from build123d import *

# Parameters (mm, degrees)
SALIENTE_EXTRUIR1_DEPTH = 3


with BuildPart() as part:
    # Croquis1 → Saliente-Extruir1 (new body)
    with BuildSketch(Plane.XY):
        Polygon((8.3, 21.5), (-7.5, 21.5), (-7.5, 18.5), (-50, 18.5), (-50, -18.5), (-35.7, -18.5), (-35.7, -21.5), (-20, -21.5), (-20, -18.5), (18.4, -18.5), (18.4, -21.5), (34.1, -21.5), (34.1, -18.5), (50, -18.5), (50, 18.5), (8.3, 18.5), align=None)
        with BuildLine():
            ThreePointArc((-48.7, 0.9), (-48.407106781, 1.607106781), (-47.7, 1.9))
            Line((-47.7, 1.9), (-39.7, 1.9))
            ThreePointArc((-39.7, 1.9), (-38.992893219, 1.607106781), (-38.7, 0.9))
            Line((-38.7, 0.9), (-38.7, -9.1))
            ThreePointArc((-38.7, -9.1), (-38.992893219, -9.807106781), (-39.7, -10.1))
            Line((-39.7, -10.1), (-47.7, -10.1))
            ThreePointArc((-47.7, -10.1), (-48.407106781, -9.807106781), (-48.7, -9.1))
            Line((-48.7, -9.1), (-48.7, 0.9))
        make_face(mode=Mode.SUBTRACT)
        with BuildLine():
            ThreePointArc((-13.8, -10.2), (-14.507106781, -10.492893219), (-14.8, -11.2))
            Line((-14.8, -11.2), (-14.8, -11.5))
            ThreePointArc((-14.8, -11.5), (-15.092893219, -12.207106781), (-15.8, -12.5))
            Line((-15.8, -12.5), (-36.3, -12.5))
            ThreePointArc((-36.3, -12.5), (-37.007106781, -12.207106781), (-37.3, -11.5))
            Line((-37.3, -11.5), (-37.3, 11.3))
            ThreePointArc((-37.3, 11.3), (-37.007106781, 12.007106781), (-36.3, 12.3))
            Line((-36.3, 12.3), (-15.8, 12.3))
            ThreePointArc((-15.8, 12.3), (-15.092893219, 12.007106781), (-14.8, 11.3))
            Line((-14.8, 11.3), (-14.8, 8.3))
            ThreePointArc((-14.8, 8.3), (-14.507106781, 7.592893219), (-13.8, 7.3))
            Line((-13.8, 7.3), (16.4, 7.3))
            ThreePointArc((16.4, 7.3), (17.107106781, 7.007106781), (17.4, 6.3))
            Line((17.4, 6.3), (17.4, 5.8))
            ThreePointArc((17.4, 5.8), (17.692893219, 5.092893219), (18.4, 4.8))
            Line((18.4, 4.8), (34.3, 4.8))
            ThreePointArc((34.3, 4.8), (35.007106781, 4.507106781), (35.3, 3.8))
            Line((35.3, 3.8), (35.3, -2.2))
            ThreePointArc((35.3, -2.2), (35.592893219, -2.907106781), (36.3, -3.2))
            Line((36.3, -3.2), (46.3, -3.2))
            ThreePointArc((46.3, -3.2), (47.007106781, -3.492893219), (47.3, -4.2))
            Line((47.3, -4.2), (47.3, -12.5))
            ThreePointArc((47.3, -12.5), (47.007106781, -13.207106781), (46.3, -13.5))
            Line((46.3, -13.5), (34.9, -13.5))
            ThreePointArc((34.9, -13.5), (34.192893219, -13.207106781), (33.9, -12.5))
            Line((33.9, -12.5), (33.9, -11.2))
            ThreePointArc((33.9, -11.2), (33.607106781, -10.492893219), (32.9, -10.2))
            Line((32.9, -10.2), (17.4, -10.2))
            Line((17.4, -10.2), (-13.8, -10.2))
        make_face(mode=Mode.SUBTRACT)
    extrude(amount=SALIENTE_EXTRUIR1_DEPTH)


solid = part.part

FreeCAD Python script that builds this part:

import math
import FreeCAD as App
import Part
import Sketcher
Q = App.Units.Quantity

doc = App.newDocument("Part")
body = doc.addObject("PartDesign::Body", "Body")

# Sketch on XY plane
sketch1 = body.newObject("Sketcher::SketchObject", "Sketch")
sketch1.AttachmentSupport = (doc.getObject("XY_Plane"), [""])
sketch1.MapMode = "FlatFace"
sketch1.addGeometry([
    Part.LineSegment(App.Vector(8.3, 21.5, 0), App.Vector(-7.5, 21.5, 0)),  # 0
    Part.LineSegment(App.Vector(-7.5, 21.5, 0), App.Vector(-7.5, 18.5, 0)),  # 1
    Part.LineSegment(App.Vector(-7.5, 18.5, 0), App.Vector(-50, 18.5, 0)),  # 2
    Part.LineSegment(App.Vector(-50, 18.5, 0), App.Vector(-50, -18.5, 0)),  # 3
    Part.LineSegment(App.Vector(-50, -18.5, 0), App.Vector(-35.7, -18.5, 0)),  # 4
    Part.LineSegment(App.Vector(-35.7, -18.5, 0), App.Vector(-35.7, -21.5, 0)),  # 5
    Part.LineSegment(App.Vector(-35.7, -21.5, 0), App.Vector(-20, -21.5, 0)),  # 6
    Part.LineSegment(App.Vector(-20, -21.5, 0), App.Vector(-20, -18.5, 0)),  # 7
    Part.LineSegment(App.Vector(-20, -18.5, 0), App.Vector(18.4, -18.5, 0)),  # 8
    Part.LineSegment(App.Vector(18.4, -18.5, 0), App.Vector(18.4, -21.5, 0)),  # 9
    Part.LineSegment(App.Vector(18.4, -21.5, 0), App.Vector(34.1, -21.5, 0)),  # 10
    Part.LineSegment(App.Vector(34.1, -21.5, 0), App.Vector(34.1, -18.5, 0)),  # 11
    Part.LineSegment(App.Vector(34.1, -18.5, 0), App.Vector(50, -18.5, 0)),  # 12
    Part.LineSegment(App.Vector(50, -18.5, 0), App.Vector(50, 18.5, 0)),  # 13
    Part.LineSegment(App.Vector(50, 18.5, 0), App.Vector(8.3, 18.5, 0)),  # 14
    Part.LineSegment(App.Vector(8.3, 18.5, 0), App.Vector(8.3, 21.5, 0)),  # 15
    Part.LineSegment(App.Vector(-48.7, -9.1, 0), App.Vector(-48.7, 0.9, 0)),  # 16
    Part.ArcOfCircle(Part.Circle(App.Vector(-47.7, 0.9, 0), App.Vector(0, 0, 1), 1), math.radians(90), math.radians(180)),  # 17
    Part.LineSegment(App.Vector(-47.7, 1.9, 0), App.Vector(-39.7, 1.9, 0)),  # 18
    Part.ArcOfCircle(Part.Circle(App.Vector(-39.7, 0.9, 0), App.Vector(0, 0, 1), 1), math.radians(0), math.radians(90)),  # 19
    Part.LineSegment(App.Vector(-38.7, 0.9, 0), App.Vector(-38.7, -9.1, 0)),  # 20
    Part.ArcOfCircle(Part.Circle(App.Vector(-39.7, -9.1, 0), App.Vector(0, 0, 1), 1), math.radians(-90), math.radians(0)),  # 21
    Part.LineSegment(App.Vector(-39.7, -10.1, 0), App.Vector(-47.7, -10.1, 0)),  # 22
    Part.ArcOfCircle(Part.Circle(App.Vector(-47.7, -9.1, 0), App.Vector(0, 0, 1), 1), math.radians(-180), math.radians(-90)),  # 23
    Part.LineSegment(App.Vector(32.9, -10.2, 0), App.Vector(-13.8, -10.2, 0)),  # 24
    Part.ArcOfCircle(Part.Circle(App.Vector(-13.8, -11.2, 0), App.Vector(0, 0, 1), 1), math.radians(90), math.radians(180)),  # 25
    Part.LineSegment(App.Vector(-14.8, -11.2, 0), App.Vector(-14.8, -11.5, 0)),  # 26
    Part.ArcOfCircle(Part.Circle(App.Vector(-15.8, -11.5, 0), App.Vector(0, 0, 1), 1), math.radians(-90), math.radians(0)),  # 27
    Part.LineSegment(App.Vector(-15.8, -12.5, 0), App.Vector(-36.3, -12.5, 0)),  # 28
    Part.ArcOfCircle(Part.Circle(App.Vector(-36.3, -11.5, 0), App.Vector(0, 0, 1), 1), math.radians(-180), math.radians(-90)),  # 29
    Part.LineSegment(App.Vector(-37.3, -11.5, 0), App.Vector(-37.3, 11.3, 0)),  # 30
    Part.ArcOfCircle(Part.Circle(App.Vector(-36.3, 11.3, 0), App.Vector(0, 0, 1), 1), math.radians(90), math.radians(180)),  # 31
    Part.LineSegment(App.Vector(-36.3, 12.3, 0), App.Vector(-15.8, 12.3, 0)),  # 32
    Part.ArcOfCircle(Part.Circle(App.Vector(-15.8, 11.3, 0), App.Vector(0, 0, 1), 1), math.radians(0), math.radians(90)),  # 33
    Part.LineSegment(App.Vector(-14.8, 11.3, 0), App.Vector(-14.8, 8.3, 0)),  # 34
    Part.ArcOfCircle(Part.Circle(App.Vector(-13.8, 8.3, 0), App.Vector(0, 0, 1), 1), math.radians(-180), math.radians(-90)),  # 35
    Part.LineSegment(App.Vector(-13.8, 7.3, 0), App.Vector(16.4, 7.3, 0)),  # 36
    Part.ArcOfCircle(Part.Circle(App.Vector(16.4, 6.3, 0), App.Vector(0, 0, 1), 1), math.radians(0), math.radians(90)),  # 37
    Part.LineSegment(App.Vector(17.4, 6.3, 0), App.Vector(17.4, 5.8, 0)),  # 38
    Part.ArcOfCircle(Part.Circle(App.Vector(18.4, 5.8, 0), App.Vector(0, 0, 1), 1), math.radians(-180), math.radians(-90)),  # 39
    Part.LineSegment(App.Vector(18.4, 4.8, 0), App.Vector(34.3, 4.8, 0)),  # 40
    Part.ArcOfCircle(Part.Circle(App.Vector(34.3, 3.8, 0), App.Vector(0, 0, 1), 1), math.radians(0), math.radians(90)),  # 41
    Part.LineSegment(App.Vector(35.3, 3.8, 0), App.Vector(35.3, -2.2, 0)),  # 42
    Part.ArcOfCircle(Part.Circle(App.Vector(36.3, -2.2, 0), App.Vector(0, 0, 1), 1), math.radians(-180), math.radians(-90)),  # 43
    Part.LineSegment(App.Vector(36.3, -3.2, 0), App.Vector(46.3, -3.2, 0)),  # 44
    Part.ArcOfCircle(Part.Circle(App.Vector(46.3, -4.2, 0), App.Vector(0, 0, 1), 1), math.radians(0), math.radians(90)),  # 45
    Part.LineSegment(App.Vector(47.3, -4.2, 0), App.Vector(47.3, -12.5, 0)),  # 46
    Part.ArcOfCircle(Part.Circle(App.Vector(46.3, -12.5, 0), App.Vector(0, 0, 1), 1), math.radians(-90), math.radians(0)),  # 47
    Part.LineSegment(App.Vector(46.3, -13.5, 0), App.Vector(34.9, -13.5, 0)),  # 48
    Part.ArcOfCircle(Part.Circle(App.Vector(34.9, -12.5, 0), App.Vector(0, 0, 1), 1), math.radians(-180), math.radians(-90)),  # 49
    Part.LineSegment(App.Vector(33.9, -12.5, 0), App.Vector(33.9, -11.2, 0)),  # 50
    Part.ArcOfCircle(Part.Circle(App.Vector(32.9, -11.2, 0), App.Vector(0, 0, 1), 1), math.radians(0), math.radians(90)),  # 51
], False)
sketch1.addConstraint([
    Sketcher.Constraint("Coincident", 0, 2, 1, 1),
    Sketcher.Constraint("Coincident", 1, 2, 2, 1),
    Sketcher.Constraint("Coincident", 2, 2, 3, 1),
    Sketcher.Constraint("Coincident", 3, 2, 4, 1),
    Sketcher.Constraint("Coincident", 4, 2, 5, 1),
    Sketcher.Constraint("Coincident", 5, 2, 6, 1),
    Sketcher.Constraint("Coincident", 6, 2, 7, 1),
    Sketcher.Constraint("Coincident", 7, 2, 8, 1),
    Sketcher.Constraint("Coincident", 8, 2, 9, 1),
    Sketcher.Constraint("Coincident", 9, 2, 10, 1),
    Sketcher.Constraint("Coincident", 10, 2, 11, 1),
    Sketcher.Constraint("Coincident", 11, 2, 12, 1),
    Sketcher.Constraint("Coincident", 12, 2, 13, 1),
    Sketcher.Constraint("Coincident", 13, 2, 14, 1),
    Sketcher.Constraint("Coincident", 14, 2, 15, 1),
    Sketcher.Constraint("Coincident", 15, 2, 0, 1),
    Sketcher.Constraint("Tangent", 16, 2, 17, 2),
    Sketcher.Constraint("Tangent", 17, 1, 18, 1),
    Sketcher.Constraint("Tangent", 18, 2, 19, 2),
    Sketcher.Constraint("Tangent", 19, 1, 20, 1),
    Sketcher.Constraint("Tangent", 20, 2, 21, 2),
    Sketcher.Constraint("Tangent", 21, 1, 22, 1),
    Sketcher.Constraint("Tangent", 22, 2, 23, 2),
    Sketcher.Constraint("Tangent", 23, 1, 16, 1),
    Sketcher.Constraint("Tangent", 24, 2, 25, 1),
    Sketcher.Constraint("Tangent", 25, 2, 26, 1),
    Sketcher.Constraint("Tangent", 26, 2, 27, 2),
    Sketcher.Constraint("Tangent", 27, 1, 28, 1),
    Sketcher.Constraint("Tangent", 28, 2, 29, 2),
    Sketcher.Constraint("Tangent", 29, 1, 30, 1),
    Sketcher.Constraint("Tangent", 30, 2, 31, 2),
    Sketcher.Constraint("Tangent", 31, 1, 32, 1),
    Sketcher.Constraint("Tangent", 32, 2, 33, 2),
    Sketcher.Constraint("Tangent", 33, 1, 34, 1),
    Sketcher.Constraint("Tangent", 34, 2, 35, 1),
    Sketcher.Constraint("Tangent", 35, 2, 36, 1),
    Sketcher.Constraint("Tangent", 36, 2, 37, 2),
    Sketcher.Constraint("Tangent", 37, 1, 38, 1),
    Sketcher.Constraint("Tangent", 38, 2, 39, 1),
    Sketcher.Constraint("Tangent", 39, 2, 40, 1),
    Sketcher.Constraint("Tangent", 40, 2, 41, 2),
    Sketcher.Constraint("Tangent", 41, 1, 42, 1),
    Sketcher.Constraint("Tangent", 42, 2, 43, 1),
    Sketcher.Constraint("Tangent", 43, 2, 44, 1),
    Sketcher.Constraint("Tangent", 44, 2, 45, 2),
    Sketcher.Constraint("Tangent", 45, 1, 46, 1),
    Sketcher.Constraint("Tangent", 46, 2, 47, 2),
    Sketcher.Constraint("Tangent", 47, 1, 48, 1),
    Sketcher.Constraint("Tangent", 48, 2, 49, 2),
    Sketcher.Constraint("Tangent", 49, 1, 50, 1),
    Sketcher.Constraint("Tangent", 50, 2, 51, 1),
    Sketcher.Constraint("Tangent", 51, 2, 24, 1),
    Sketcher.Constraint("Horizontal", 0),
    Sketcher.Constraint("Vertical", 1),
    Sketcher.Constraint("Horizontal", 2),
    Sketcher.Constraint("Vertical", 3),
    Sketcher.Constraint("Horizontal", 4),
    Sketcher.Constraint("Vertical", 5),
    Sketcher.Constraint("Horizontal", 6),
    Sketcher.Constraint("Vertical", 7),
    Sketcher.Constraint("Horizontal", 8),
    Sketcher.Constraint("Vertical", 9),
    Sketcher.Constraint("Horizontal", 10),
    Sketcher.Constraint("Vertical", 11),
    Sketcher.Constraint("Horizontal", 12),
    Sketcher.Constraint("Vertical", 13),
    Sketcher.Constraint("Horizontal", 14),
    Sketcher.Constraint("Vertical", 15),
    Sketcher.Constraint("Vertical", 16),
    Sketcher.Constraint("Horizontal", 18),
    Sketcher.Constraint("Vertical", 20),
    Sketcher.Constraint("Horizontal", 22),
    Sketcher.Constraint("Horizontal", 24),
    Sketcher.Constraint("Vertical", 26),
    Sketcher.Constraint("Horizontal", 28),
    Sketcher.Constraint("Vertical", 30),
    Sketcher.Constraint("Horizontal", 32),
    Sketcher.Constraint("Vertical", 34),
    Sketcher.Constraint("Horizontal", 36),
    Sketcher.Constraint("Vertical", 38),
    Sketcher.Constraint("Horizontal", 40),
    Sketcher.Constraint("Vertical", 42),
    Sketcher.Constraint("Horizontal", 44),
    Sketcher.Constraint("Vertical", 46),
    Sketcher.Constraint("Horizontal", 48),
    Sketcher.Constraint("Vertical", 50),
    Sketcher.Constraint("Equal", 17, 19),
    Sketcher.Constraint("Equal", 19, 21),
    Sketcher.Constraint("Equal", 21, 23),
    Sketcher.Constraint("Equal", 23, 25),
    Sketcher.Constraint("Equal", 25, 27),
    Sketcher.Constraint("Equal", 27, 29),
    Sketcher.Constraint("Equal", 29, 31),
    Sketcher.Constraint("Equal", 31, 33),
    Sketcher.Constraint("Equal", 33, 35),
    Sketcher.Constraint("Equal", 35, 37),
    Sketcher.Constraint("Equal", 37, 39),
    Sketcher.Constraint("Equal", 39, 41),
    Sketcher.Constraint("Equal", 41, 43),
    Sketcher.Constraint("Equal", 43, 45),
    Sketcher.Constraint("Equal", 45, 47),
    Sketcher.Constraint("Equal", 47, 49),
    Sketcher.Constraint("Equal", 49, 51),
    Sketcher.Constraint("Symmetric", 2, 2, 12, 2, -1, 1),
    Sketcher.Constraint("Horizontal", 4, 2, 7, 2),
    Sketcher.Constraint("Horizontal", 6, 2, 9, 2),
    Sketcher.Constraint("Horizontal", 8, 2, 11, 2),
    Sketcher.Constraint("Horizontal", 2, 2, 13, 2),
    Sketcher.Constraint("Horizontal", 49, 3, 27, 1),
    Sketcher.Constraint("Vertical", 27, 3, 33, 3),
    Sketcher.Constraint("Vertical", 39, 3, 8, 2),
    Sketcher.Constraint("Equal", 6, 10),
    Sketcher.Constraint("Equal", 12, 40),
    Sketcher.Constraint("Equal", 1, 5),
    Sketcher.Constraint("Equal", 44, 16),
    Sketcher.Constraint("Equal", 15, 34),
    Sketcher.Constraint("Radius", 17, Q("1 mm")),
    Sketcher.Constraint("DistanceX", 18, 1, 18, 2, Q("8 mm")),
    Sketcher.Constraint("DistanceX", 44, 1, 44, 2, Q("10 mm")),
    Sketcher.Constraint("DistanceY", 1, 2, 1, 1, Q("3 mm")),
    Sketcher.Constraint("DistanceY", 3, 2, 3, 1, Q("37 mm")),
    Sketcher.Constraint("DistanceY", 42, 2, 42, 1, Q("6 mm")),
    Sketcher.Constraint("DistanceX", 0, 2, 0, 1, Q("15.8 mm")),
    Sketcher.Constraint("DistanceX", 2, 2, 2, 1, Q("42.5 mm")),
    Sketcher.Constraint("DistanceX", 4, 1, 4, 2, Q("14.3 mm")),
    Sketcher.Constraint("DistanceX", 6, 1, 6, 2, Q("15.7 mm")),
    Sketcher.Constraint("DistanceX", 8, 1, 8, 2, Q("38.4 mm")),
    Sketcher.Constraint("DistanceX", 12, 1, 12, 2, Q("15.9 mm")),
    Sketcher.Constraint("DistanceX", 24, 2, 24, 1, Q("46.7 mm")),
    Sketcher.Constraint("DistanceX", 28, 2, 28, 1, Q("20.5 mm")),
    Sketcher.Constraint("DistanceX", 36, 1, 36, 2, Q("30.2 mm")),
    Sketcher.Constraint("DistanceY", 26, 2, 26, 1, Q("0.3 mm")),
    Sketcher.Constraint("DistanceY", 30, 1, 30, 2, Q("22.8 mm")),
    Sketcher.Constraint("DistanceY", 38, 2, 38, 1, Q("0.5 mm")),
    Sketcher.Constraint("DistanceX", 17, 3, -1, 1, Q("47.7 mm")),
    Sketcher.Constraint("DistanceY", -1, 1, 17, 3, Q("0.9 mm")),
    Sketcher.Constraint("DistanceY", 25, 3, -1, 1, Q("11.2 mm")),
])
pad1 = body.newObject("PartDesign::Pad", "Pad")
pad1.Profile = sketch1
pad1.Length = 3

doc.recompute()
